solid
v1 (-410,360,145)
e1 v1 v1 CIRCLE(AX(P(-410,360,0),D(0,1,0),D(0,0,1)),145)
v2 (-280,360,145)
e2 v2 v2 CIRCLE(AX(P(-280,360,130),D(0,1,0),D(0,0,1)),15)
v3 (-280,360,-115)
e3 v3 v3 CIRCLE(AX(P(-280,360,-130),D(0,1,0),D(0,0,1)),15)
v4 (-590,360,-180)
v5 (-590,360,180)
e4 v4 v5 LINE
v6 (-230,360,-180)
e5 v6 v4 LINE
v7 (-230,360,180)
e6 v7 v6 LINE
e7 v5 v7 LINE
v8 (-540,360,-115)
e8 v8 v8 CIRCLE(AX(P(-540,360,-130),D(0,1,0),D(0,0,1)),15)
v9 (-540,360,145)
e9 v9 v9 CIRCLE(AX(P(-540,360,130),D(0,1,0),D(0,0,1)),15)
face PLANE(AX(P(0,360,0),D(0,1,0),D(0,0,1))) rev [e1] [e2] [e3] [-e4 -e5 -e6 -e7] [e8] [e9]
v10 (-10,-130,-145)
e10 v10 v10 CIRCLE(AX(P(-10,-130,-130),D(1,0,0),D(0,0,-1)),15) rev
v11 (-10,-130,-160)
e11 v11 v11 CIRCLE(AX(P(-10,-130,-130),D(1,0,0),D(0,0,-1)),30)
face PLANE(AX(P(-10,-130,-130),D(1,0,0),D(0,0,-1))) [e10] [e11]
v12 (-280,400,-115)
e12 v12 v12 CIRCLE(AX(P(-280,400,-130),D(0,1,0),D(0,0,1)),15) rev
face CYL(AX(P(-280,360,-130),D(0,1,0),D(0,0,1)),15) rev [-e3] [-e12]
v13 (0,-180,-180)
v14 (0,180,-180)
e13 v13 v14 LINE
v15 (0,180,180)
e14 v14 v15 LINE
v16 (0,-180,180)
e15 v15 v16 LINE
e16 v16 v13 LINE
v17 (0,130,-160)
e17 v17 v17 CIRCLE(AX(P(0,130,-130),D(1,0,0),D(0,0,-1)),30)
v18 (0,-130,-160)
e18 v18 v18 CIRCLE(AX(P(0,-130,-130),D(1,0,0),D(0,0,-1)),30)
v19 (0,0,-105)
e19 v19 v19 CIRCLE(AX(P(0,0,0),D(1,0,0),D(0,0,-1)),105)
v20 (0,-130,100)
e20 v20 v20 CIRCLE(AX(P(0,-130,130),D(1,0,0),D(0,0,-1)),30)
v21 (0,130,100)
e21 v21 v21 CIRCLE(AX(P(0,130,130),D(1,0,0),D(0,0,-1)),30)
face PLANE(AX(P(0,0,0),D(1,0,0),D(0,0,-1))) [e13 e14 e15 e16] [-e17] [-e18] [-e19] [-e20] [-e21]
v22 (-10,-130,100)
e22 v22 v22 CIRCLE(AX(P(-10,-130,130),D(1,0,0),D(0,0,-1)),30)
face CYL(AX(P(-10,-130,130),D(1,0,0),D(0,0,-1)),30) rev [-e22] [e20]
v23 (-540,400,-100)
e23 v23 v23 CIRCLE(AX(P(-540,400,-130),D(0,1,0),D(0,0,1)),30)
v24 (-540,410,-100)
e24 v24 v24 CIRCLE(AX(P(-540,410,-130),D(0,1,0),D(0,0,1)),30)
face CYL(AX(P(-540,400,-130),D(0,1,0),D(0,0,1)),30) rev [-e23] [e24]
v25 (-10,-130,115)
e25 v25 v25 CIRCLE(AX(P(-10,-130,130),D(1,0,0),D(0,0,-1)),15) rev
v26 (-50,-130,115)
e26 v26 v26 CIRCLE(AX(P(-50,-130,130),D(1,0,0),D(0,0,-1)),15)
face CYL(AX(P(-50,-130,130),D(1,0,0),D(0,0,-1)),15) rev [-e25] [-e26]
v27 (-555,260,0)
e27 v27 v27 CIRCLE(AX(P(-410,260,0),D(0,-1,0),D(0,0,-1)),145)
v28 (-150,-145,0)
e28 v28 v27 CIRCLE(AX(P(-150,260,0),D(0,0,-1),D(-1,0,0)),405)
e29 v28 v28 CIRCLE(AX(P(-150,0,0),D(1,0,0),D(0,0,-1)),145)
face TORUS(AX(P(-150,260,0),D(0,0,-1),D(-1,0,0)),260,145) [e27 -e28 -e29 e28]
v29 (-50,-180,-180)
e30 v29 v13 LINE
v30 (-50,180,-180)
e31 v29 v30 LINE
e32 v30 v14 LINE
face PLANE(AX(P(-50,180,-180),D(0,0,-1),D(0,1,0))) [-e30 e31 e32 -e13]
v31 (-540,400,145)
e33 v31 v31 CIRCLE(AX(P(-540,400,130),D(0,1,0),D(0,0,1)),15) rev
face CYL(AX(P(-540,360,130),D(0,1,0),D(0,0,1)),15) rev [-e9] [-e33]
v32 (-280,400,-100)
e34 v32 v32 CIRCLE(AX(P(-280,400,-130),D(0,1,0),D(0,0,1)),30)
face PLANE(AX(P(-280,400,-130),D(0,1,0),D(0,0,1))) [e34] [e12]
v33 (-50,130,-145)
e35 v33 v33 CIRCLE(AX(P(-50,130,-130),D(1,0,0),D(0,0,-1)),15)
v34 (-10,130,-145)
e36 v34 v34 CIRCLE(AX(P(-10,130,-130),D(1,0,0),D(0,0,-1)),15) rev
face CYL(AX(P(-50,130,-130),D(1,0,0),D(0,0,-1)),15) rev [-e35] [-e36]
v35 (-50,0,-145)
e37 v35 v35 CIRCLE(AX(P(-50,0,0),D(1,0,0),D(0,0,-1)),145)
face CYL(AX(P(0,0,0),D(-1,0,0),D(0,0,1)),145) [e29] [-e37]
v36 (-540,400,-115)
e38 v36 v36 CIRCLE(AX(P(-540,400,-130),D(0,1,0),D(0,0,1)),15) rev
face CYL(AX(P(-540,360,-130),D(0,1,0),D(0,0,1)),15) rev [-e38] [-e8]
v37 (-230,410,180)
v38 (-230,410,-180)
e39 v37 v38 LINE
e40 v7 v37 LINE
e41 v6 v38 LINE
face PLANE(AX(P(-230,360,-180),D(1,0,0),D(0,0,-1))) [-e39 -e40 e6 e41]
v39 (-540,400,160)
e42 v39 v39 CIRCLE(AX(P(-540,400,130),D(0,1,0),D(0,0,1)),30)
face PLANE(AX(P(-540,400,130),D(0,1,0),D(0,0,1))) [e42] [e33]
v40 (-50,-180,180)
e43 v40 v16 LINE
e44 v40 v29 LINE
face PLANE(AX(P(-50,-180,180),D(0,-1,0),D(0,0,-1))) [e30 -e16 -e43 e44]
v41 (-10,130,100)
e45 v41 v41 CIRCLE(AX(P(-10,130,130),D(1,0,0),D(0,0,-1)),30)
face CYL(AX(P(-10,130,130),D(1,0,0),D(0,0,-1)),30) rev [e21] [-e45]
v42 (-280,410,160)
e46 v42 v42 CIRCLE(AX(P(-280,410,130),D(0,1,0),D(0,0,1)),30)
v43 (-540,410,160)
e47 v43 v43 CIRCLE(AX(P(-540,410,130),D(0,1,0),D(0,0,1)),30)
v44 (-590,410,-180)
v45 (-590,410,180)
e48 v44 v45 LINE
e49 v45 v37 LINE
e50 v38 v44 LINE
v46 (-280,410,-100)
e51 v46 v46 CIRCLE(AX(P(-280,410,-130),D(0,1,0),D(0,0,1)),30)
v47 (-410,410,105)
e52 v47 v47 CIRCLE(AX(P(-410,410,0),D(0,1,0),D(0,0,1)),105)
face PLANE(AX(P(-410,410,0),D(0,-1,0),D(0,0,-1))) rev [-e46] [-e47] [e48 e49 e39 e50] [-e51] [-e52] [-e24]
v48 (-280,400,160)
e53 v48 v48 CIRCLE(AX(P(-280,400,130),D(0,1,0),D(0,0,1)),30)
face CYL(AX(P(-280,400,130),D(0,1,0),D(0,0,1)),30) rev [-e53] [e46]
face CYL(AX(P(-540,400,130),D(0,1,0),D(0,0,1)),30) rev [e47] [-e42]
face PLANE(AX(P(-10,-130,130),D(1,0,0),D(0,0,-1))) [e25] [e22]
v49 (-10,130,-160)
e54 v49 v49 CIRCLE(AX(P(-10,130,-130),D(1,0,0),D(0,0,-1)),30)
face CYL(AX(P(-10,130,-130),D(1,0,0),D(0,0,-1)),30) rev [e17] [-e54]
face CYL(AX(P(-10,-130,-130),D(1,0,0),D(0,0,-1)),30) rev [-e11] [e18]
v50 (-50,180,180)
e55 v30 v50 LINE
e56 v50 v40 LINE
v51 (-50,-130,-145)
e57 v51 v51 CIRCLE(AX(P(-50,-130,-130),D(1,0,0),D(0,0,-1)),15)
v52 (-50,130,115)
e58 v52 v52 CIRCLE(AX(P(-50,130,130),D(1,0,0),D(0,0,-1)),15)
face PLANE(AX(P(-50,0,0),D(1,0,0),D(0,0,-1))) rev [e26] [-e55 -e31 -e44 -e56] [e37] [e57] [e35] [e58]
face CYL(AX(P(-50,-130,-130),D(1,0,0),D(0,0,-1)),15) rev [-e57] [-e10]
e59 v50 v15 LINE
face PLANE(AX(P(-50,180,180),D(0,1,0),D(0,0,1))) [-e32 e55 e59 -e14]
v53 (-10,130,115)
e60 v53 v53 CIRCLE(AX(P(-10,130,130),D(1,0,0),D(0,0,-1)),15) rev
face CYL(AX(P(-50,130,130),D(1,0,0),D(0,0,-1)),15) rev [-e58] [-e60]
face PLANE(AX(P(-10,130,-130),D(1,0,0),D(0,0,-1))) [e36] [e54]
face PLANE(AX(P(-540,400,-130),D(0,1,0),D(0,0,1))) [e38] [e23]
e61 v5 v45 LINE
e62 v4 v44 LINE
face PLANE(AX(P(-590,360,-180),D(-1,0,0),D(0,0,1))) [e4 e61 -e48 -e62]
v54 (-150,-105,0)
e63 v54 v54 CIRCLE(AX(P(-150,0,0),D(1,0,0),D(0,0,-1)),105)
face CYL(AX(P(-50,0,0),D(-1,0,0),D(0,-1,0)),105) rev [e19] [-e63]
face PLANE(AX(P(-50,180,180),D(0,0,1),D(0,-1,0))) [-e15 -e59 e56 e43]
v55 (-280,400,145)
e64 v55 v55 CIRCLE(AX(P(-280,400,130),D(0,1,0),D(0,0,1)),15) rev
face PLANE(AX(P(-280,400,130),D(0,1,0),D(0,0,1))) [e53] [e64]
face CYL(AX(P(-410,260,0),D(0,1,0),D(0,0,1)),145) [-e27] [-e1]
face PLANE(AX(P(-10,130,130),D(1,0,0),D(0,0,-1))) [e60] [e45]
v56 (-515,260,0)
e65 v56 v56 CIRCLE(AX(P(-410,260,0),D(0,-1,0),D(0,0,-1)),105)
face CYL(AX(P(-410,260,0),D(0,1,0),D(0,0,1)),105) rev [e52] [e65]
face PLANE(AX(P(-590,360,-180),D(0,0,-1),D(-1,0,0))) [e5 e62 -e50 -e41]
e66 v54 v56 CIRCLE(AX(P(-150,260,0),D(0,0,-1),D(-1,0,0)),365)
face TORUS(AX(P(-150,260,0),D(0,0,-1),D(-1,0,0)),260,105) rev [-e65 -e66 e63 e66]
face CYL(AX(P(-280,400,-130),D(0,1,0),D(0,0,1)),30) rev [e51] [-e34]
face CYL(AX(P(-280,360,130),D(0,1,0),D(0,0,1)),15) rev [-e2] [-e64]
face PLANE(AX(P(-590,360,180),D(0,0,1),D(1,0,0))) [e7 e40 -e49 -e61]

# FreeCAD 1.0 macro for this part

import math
import FreeCAD as App
import Part
import Sketcher


def add_polygon(sketch, points):
    """Adds a closed chain of lines whose ends are joined by coincident constraints."""
    first, n = sketch.GeometryCount, len(points)
    for a, b in zip(points, points[1:] + points[:1]):
        sketch.addGeometry(Part.LineSegment(App.Vector(*a, 0), App.Vector(*b, 0)), False)
    for i in range(n):
        sketch.addConstraint(Sketcher.Constraint("Coincident", first + i, 2, first + (i + 1) % n, 1))

doc = App.newDocument("Part")
body = doc.addObject("PartDesign::Body", "Body")

sketch1 = body.newObject("Sketcher::SketchObject", "Sketch")
sketch1.AttachmentSupport = (doc.getObject("YZ_Plane"), [""])
sketch1.MapMode = "FlatFace"
sketch1.addGeometry(Part.Circle(App.Vector(0, 0, 0), App.Vector(0, 0, 1), 145), False)
sketch1.addConstraint(Sketcher.Constraint("Coincident", 0, 3, -1, 1))
sketch1.addConstraint(Sketcher.Constraint("Diameter", 0, 290.0))

sketch2 = body.newObject("Sketcher::SketchObject", "Sketch001")
sketch2.AttachmentSupport = (doc.getObject("XY_Plane"), [""])
sketch2.MapMode = "FlatFace"
sketch2.addGeometry(Part.LineSegment(App.Vector(0, 0, 0), App.Vector(-150, 0, 0)), False)
sketch2.addGeometry(Part.ArcOfCircle(Part.Circle(App.Vector(-150, 260, 0), App.Vector(0, 0, 1), 260), math.radians(180), math.radians(270)), False)
sketch2.addGeometry(Part.LineSegment(App.Vector(-410, 260, 0), App.Vector(-410, 410, 0)), False)
sketch2.addConstraint(Sketcher.Constraint("Tangent", 0, 2, 1, 2))
sketch2.addConstraint(Sketcher.Constraint("Tangent", 1, 1, 2, 1))
sketch2.addConstraint(Sketcher.Constraint("Horizontal", 0))
sketch2.addConstraint(Sketcher.Constraint("Vertical", 2))
sketch2.addConstraint(Sketcher.Constraint("Coincident", 0, 1, -1, 1))
sketch2.addConstraint(Sketcher.Constraint("Equal", 0, 2))
sketch2.addConstraint(Sketcher.Constraint("Radius", 1, 260.0))
sketch2.addConstraint(Sketcher.Constraint("DistanceX", 0, 2, 0, 1, 150.0))
doc.recompute()

additivepipe = body.newObject("PartDesign::AdditivePipe", "AdditivePipe")
additivepipe.Profile = sketch1
additivepipe.Spine = (sketch2, ["Edge1", "Edge2", "Edge3"])

sketch3 = body.newObject("Sketcher::SketchObject", "Sketch002")
sketch3.AttachmentSupport = (doc.getObject("XZ_Plane"), [""])
sketch3.MapMode = "FlatFace"
sketch3.AttachmentOffset = App.Placement(App.Vector(0, 0, -410), App.Rotation())
add_polygon(sketch3, [(-590, -180), (-590, 180), (-230, 180), (-230, -180)])
sketch3.addConstraint(Sketcher.Constraint("Vertical", 0))
sketch3.addConstraint(Sketcher.Constraint("Horizontal", 1))
sketch3.addConstraint(Sketcher.Constraint("Vertical", 2))
sketch3.addConstraint(Sketcher.Constraint("Horizontal", 3))
sketch3.addConstraint(Sketcher.Constraint("Equal", 3, 0))
sketch3.addConstraint(Sketcher.Constraint("DistanceX", 1, 1, 1, 2, 360.0))
sketch3.addConstraint(Sketcher.Constraint("DistanceX", 0, 2, -1, 1, 590.0))
sketch3.addConstraint(Sketcher.Constraint("DistanceY", -1, 1, 0, 2, 180.0))
pad1 = body.newObject("PartDesign::Pad", "Pad")
pad1.Profile = sketch3
pad1.Length = 50

sketch4 = body.newObject("Sketcher::SketchObject", "Sketch003")
sketch4.AttachmentSupport = (doc.getObject("YZ_Plane"), [""])
sketch4.MapMode = "FlatFace"
add_polygon(sketch4, [(180, 180), (-180, 180), (-180, -180), (180, -180)])
sketch4.addConstraint(Sketcher.Constraint("Horizontal", 0))
sketch4.addConstraint(Sketcher.Constraint("Vertical", 1))
sketch4.addConstraint(Sketcher.Constraint("Horizontal", 2))
sketch4.addConstraint(Sketcher.Constraint("Vertical", 3))
sketch4.addConstraint(Sketcher.Constraint("Symmetric", 0, 2, 2, 2, -1, 1))
sketch4.addConstraint(Sketcher.Constraint("Equal", 2, 1))
sketch4.addConstraint(Sketcher.Constraint("DistanceX", 0, 2, 0, 1, 360.0))
pad2 = body.newObject("PartDesign::Pad", "Pad001")
pad2.Profile = sketch4
pad2.Length = 50
pad2.Reversed = True

sketch5 = body.newObject("Sketcher::SketchObject", "Sketch004")
sketch5.AttachmentSupport = (doc.getObject("XZ_Plane"), [""])
sketch5.MapMode = "FlatFace"
sketch5.AttachmentOffset = App.Placement(App.Vector(0, 0, -410), App.Rotation())
sketch5.addGeometry(Part.Circle(App.Vector(-540, -130, 0), App.Vector(0, 0, 1), 15), False)
sketch5.addGeometry(Part.Circle(App.Vector(-280, -130, 0), App.Vector(0, 0, 1), 15), False)
sketch5.addGeometry(Part.Circle(App.Vector(-540, 130, 0), App.Vector(0, 0, 1), 15), False)
sketch5.addGeometry(Part.Circle(App.Vector(-280, 130, 0), App.Vector(0, 0, 1), 15), False)
sketch5.addConstraint(Sketcher.Constraint("Equal", 0, 1))
sketch5.addConstraint(Sketcher.Constraint("Equal", 1, 2))
sketch5.addConstraint(Sketcher.Constraint("Equal", 2, 3))
sketch5.addConstraint(Sketcher.Constraint("Symmetric", 0, 3, 2, 3, -1))
sketch5.addConstraint(Sketcher.Constraint("Symmetric", 1, 3, 3, 3, -1))
sketch5.addConstraint(Sketcher.Constraint("Horizontal", 0, 3, 1, 3))
sketch5.addConstraint(Sketcher.Constraint("Diameter", 0, 30.0))
sketch5.addConstraint(Sketcher.Constraint("DistanceX", 0, 3, -1, 1, 540.0))
sketch5.addConstraint(Sketcher.Constraint("DistanceY", 0, 3, -1, 1, 130.0))
sketch5.addConstraint(Sketcher.Constraint("DistanceX", 1, 3, -1, 1, 280.0))
pocket1 = body.newObject("PartDesign::Pocket", "Pocket")
pocket1.Profile = sketch5
pocket1.Length = 50
pocket1.Reversed = True

sketch6 = body.newObject("Sketcher::SketchObject", "Sketch005")
sketch6.AttachmentSupport = (doc.getObject("XZ_Plane"), [""])
sketch6.MapMode = "FlatFace"
sketch6.AttachmentOffset = App.Placement(App.Vector(0, 0, -410), App.Rotation())
sketch6.addGeometry(Part.Circle(App.Vector(-540, -130, 0), App.Vector(0, 0, 1), 30), False)
sketch6.addGeometry(Part.Circle(App.Vector(-280, -130, 0), App.Vector(0, 0, 1), 30), False)
sketch6.addGeometry(Part.Circle(App.Vector(-280, 130, 0), App.Vector(0, 0, 1), 30), False)
sketch6.addGeometry(Part.Circle(App.Vector(-540, 130, 0), App.Vector(0, 0, 1), 30), False)
sketch6.addConstraint(Sketcher.Constraint("Equal", 0, 1))
sketch6.addConstraint(Sketcher.Constraint("Equal", 1, 2))
sketch6.addConstraint(Sketcher.Constraint("Equal", 2, 3))
sketch6.addConstraint(Sketcher.Constraint("Symmetric", 1, 3, 2, 3, -1))
sketch6.addConstraint(Sketcher.Constraint("Symmetric", 0, 3, 3, 3, -1))
sketch6.addConstraint(Sketcher.Constraint("Horizontal", 0, 3, 1, 3))
sketch6.addConstraint(Sketcher.Constraint("Diameter", 0, 60.0))
sketch6.addConstraint(Sketcher.Constraint("DistanceX", 0, 3, -1, 1, 540.0))
sketch6.addConstraint(Sketcher.Constraint("DistanceY", 0, 3, -1, 1, 130.0))
sketch6.addConstraint(Sketcher.Constraint("DistanceX", 1, 3, -1, 1, 280.0))
pocket2 = body.newObject("PartDesign::Pocket", "Pocket001")
pocket2.Profile = sketch6
pocket2.Length = 10
pocket2.Reversed = True

sketch7 = body.newObject("Sketcher::SketchObject", "Sketch006")
sketch7.AttachmentSupport = (doc.getObject("YZ_Plane"), [""])
sketch7.MapMode = "FlatFace"
sketch7.addGeometry(Part.Circle(App.Vector(130, 130, 0), App.Vector(0, 0, 1), 15), False)
sketch7.addGeometry(Part.Circle(App.Vector(130, -130, 0), App.Vector(0, 0, 1), 15), False)
sketch7.addGeometry(Part.Circle(App.Vector(-130, -130, 0), App.Vector(0, 0, 1), 15), False)
sketch7.addGeometry(Part.Circle(App.Vector(-130, 130, 0), App.Vector(0, 0, 1), 15), False)
sketch7.addConstraint(Sketcher.Constraint("Equal", 0, 1))
sketch7.addConstraint(Sketcher.Constraint("Equal", 1, 2))
sketch7.addConstraint(Sketcher.Constraint("Equal", 2, 3))
sketch7.addConstraint(Sketcher.Constraint("Symmetric", 0, 3, 2, 3, -1, 1))
sketch7.addConstraint(Sketcher.Constraint("Symmetric", 1, 3, 3, 3, -1, 1))
sketch7.addConstraint(Sketcher.Constraint("Symmetric", 1, 3, 2, 3, -2))
sketch7.addConstraint(Sketcher.Constraint("Diameter", 0, 30.0))
sketch7.addConstraint(Sketcher.Constraint("DistanceX", -1, 1, 0, 3, 130.0))
sketch7.addConstraint(Sketcher.Constraint("DistanceY", -1, 1, 0, 3, 130.0))
pad3 = body.newObject("PartDesign::Pad", "Pad002")
pad3.Profile = sketch7
pad3.Length = 50
pad3.Reversed = True

sketch8 = body.newObject("Sketcher::SketchObject", "Sketch007")
sketch8.AttachmentSupport = (doc.getObject("YZ_Plane"), [""])
sketch8.MapMode = "FlatFace"
sketch8.addGeometry(Part.Circle(App.Vector(130, 130, 0), App.Vector(0, 0, 1), 15), False)
sketch8.addGeometry(Part.Circle(App.Vector(130, -130, 0), App.Vector(0, 0, 1), 15), False)
sketch8.addGeometry(Part.Circle(App.Vector(-130, -130, 0), App.Vector(0, 0, 1), 15), False)
sketch8.addGeometry(Part.Circle(App.Vector(-130, 130, 0), App.Vector(0, 0, 1), 15), False)
sketch8.addConstraint(Sketcher.Constraint("Equal", 0, 1))
sketch8.addConstraint(Sketcher.Constraint("Equal", 1, 2))
sketch8.addConstraint(Sketcher.Constraint("Equal", 2, 3))
sketch8.addConstraint(Sketcher.Constraint("Symmetric", 0, 3, 2, 3, -1, 1))
sketch8.addConstraint(Sketcher.Constraint("Symmetric", 1, 3, 3, 3, -1, 1))
sketch8.addConstraint(Sketcher.Constraint("Symmetric", 1, 3, 2, 3, -2))
sketch8.addConstraint(Sketcher.Constraint("Diameter", 0, 30.0))
sketch8.addConstraint(Sketcher.Constraint("DistanceX", -1, 1, 0, 3, 130.0))
sketch8.addConstraint(Sketcher.Constraint("DistanceY", -1, 1, 0, 3, 130.0))
pocket3 = body.newObject("PartDesign::Pocket", "Pocket002")
pocket3.Profile = sketch8
pocket3.Length = 50

sketch9 = body.newObject("Sketcher::SketchObject", "Sketch008")
sketch9.AttachmentSupport = (doc.getObject("YZ_Plane"), [""])
sketch9.MapMode = "FlatFace"
sketch9.addGeometry(Part.Circle(App.Vector(130, 130, 0), App.Vector(0, 0, 1), 30), False)
sketch9.addGeometry(Part.Circle(App.Vector(130, -130, 0), App.Vector(0, 0, 1), 30), False)
sketch9.addGeometry(Part.Circle(App.Vector(-130, -130, 0), App.Vector(0, 0, 1), 30), False)
sketch9.addGeometry(Part.Circle(App.Vector(-130, 130, 0), App.Vector(0, 0, 1), 30), False)
sketch9.addConstraint(Sketcher.Constraint("Equal", 0, 1))
sketch9.addConstraint(Sketcher.Constraint("Equal", 1, 2))
sketch9.addConstraint(Sketcher.Constraint("Equal", 2, 3))
sketch9.addConstraint(Sketcher.Constraint("Symmetric", 0, 3, 2, 3, -1, 1))
sketch9.addConstraint(Sketcher.Constraint("Symmetric", 1, 3, 3, 3, -1, 1))
sketch9.addConstraint(Sketcher.Constraint("Symmetric", 1, 3, 2, 3, -2))
sketch9.addConstraint(Sketcher.Constraint("Diameter", 0, 60.0))
sketch9.addConstraint(Sketcher.Constraint("DistanceX", -1, 1, 0, 3, 130.0))
sketch9.addConstraint(Sketcher.Constraint("DistanceY", -1, 1, 0, 3, 130.0))
pocket4 = body.newObject("PartDesign::Pocket", "Pocket003")
pocket4.Profile = sketch9
pocket4.Length = 10

sketch10 = body.newObject("Sketcher::SketchObject", "Sketch009")
sketch10.AttachmentSupport = (doc.getObject("YZ_Plane"), [""])
sketch10.MapMode = "FlatFace"
sketch10.AttachmentOffset = App.Placement(App.Vector(0, 0, -50), App.Rotation())
sketch10.addGeometry(Part.Circle(App.Vector(0, 0, 0), App.Vector(0, 0, 1), 105), False)
sketch10.addConstraint(Sketcher.Constraint("Coincident", 0, 3, -1, 1))
sketch10.addConstraint(Sketcher.Constraint("Diameter", 0, 210.0))

sketch11 = body.newObject("Sketcher::SketchObject", "Sketch010")
sketch11.AttachmentSupport = (doc.getObject("XY_Plane"), [""])
sketch11.MapMode = "FlatFace"
sketch11.addGeometry(Part.LineSegment(App.Vector(-50, 0, 0), App.Vector(-150, 0, 0)), False)
sketch11.addGeometry(Part.ArcOfCircle(Part.Circle(App.Vector(-150, 260, 0), App.Vector(0, 0, 1), 260), math.radians(180), math.radians(270)), False)
sketch11.addGeometry(Part.LineSegment(App.Vector(-410, 260, 0), App.Vector(-410, 360, 0)), False)
sketch11.addConstraint(Sketcher.Constraint("Tangent", 0, 2, 1, 2))
sketch11.addConstraint(Sketcher.Constraint("Tangent", 1, 1, 2, 1))
sketch11.addConstraint(Sketcher.Constraint("Horizontal", 0))
sketch11.addConstraint(Sketcher.Constraint("Vertical", 2))
sketch11.addConstraint(Sketcher.Constraint("PointOnObject", 0, 1, -1))
sketch11.addConstraint(Sketcher.Constraint("Equal", 0, 2))
sketch11.addConstraint(Sketcher.Constraint("Radius", 1, 260.0))
sketch11.addConstraint(Sketcher.Constraint("DistanceX", 0, 2, 0, 1, 100.0))
sketch11.addConstraint(Sketcher.Constraint("DistanceX", 1, 3, -1, 1, 150.0))
doc.recompute()

subtractivepipe = body.newObject("PartDesign::SubtractivePipe", "SubtractivePipe")
subtractivepipe.Profile = sketch10
subtractivepipe.Spine = (sketch11, ["Edge1", "Edge2", "Edge3"])

sketch12 = body.newObject("Sketcher::SketchObject", "Sketch011")
sketch12.AttachmentSupport = (doc.getObject("YZ_Plane"), [""])
sketch12.MapMode = "FlatFace"
sketch12.addGeometry(Part.Circle(App.Vector(0, 0, 0), App.Vector(0, 0, 1), 105), False)
sketch12.addConstraint(Sketcher.Constraint("Coincident", 0, 3, -1, 1))
sketch12.addConstraint(Sketcher.Constraint("Diameter", 0, 210.0))
pocket5 = body.newObject("PartDesign::Pocket", "Pocket004")
pocket5.Profile = sketch12
pocket5.Length = 50

sketch13 = body.newObject("Sketcher::SketchObject", "Sketch012")
sketch13.AttachmentSupport = (doc.getObject("XZ_Plane"), [""])
sketch13.MapMode = "FlatFace"
sketch13.AttachmentOffset = App.Placement(App.Vector(0, 0, -410), App.Rotation())
sketch13.addGeometry(Part.Circle(App.Vector(-410, 0, 0), App.Vector(0, 0, 1), 105), False)
sketch13.addConstraint(Sketcher.Constraint("PointOnObject", 0, 3, -1))
sketch13.addConstraint(Sketcher.Constraint("Diameter", 0, 210.0))
sketch13.addConstraint(Sketcher.Constraint("DistanceX", 0, 3, -1, 1, 410.0))
pocket6 = body.newObject("PartDesign::Pocket", "Pocket005")
pocket6.Profile = sketch13
pocket6.Length = 50
pocket6.Reversed = True

doc.recompute()
